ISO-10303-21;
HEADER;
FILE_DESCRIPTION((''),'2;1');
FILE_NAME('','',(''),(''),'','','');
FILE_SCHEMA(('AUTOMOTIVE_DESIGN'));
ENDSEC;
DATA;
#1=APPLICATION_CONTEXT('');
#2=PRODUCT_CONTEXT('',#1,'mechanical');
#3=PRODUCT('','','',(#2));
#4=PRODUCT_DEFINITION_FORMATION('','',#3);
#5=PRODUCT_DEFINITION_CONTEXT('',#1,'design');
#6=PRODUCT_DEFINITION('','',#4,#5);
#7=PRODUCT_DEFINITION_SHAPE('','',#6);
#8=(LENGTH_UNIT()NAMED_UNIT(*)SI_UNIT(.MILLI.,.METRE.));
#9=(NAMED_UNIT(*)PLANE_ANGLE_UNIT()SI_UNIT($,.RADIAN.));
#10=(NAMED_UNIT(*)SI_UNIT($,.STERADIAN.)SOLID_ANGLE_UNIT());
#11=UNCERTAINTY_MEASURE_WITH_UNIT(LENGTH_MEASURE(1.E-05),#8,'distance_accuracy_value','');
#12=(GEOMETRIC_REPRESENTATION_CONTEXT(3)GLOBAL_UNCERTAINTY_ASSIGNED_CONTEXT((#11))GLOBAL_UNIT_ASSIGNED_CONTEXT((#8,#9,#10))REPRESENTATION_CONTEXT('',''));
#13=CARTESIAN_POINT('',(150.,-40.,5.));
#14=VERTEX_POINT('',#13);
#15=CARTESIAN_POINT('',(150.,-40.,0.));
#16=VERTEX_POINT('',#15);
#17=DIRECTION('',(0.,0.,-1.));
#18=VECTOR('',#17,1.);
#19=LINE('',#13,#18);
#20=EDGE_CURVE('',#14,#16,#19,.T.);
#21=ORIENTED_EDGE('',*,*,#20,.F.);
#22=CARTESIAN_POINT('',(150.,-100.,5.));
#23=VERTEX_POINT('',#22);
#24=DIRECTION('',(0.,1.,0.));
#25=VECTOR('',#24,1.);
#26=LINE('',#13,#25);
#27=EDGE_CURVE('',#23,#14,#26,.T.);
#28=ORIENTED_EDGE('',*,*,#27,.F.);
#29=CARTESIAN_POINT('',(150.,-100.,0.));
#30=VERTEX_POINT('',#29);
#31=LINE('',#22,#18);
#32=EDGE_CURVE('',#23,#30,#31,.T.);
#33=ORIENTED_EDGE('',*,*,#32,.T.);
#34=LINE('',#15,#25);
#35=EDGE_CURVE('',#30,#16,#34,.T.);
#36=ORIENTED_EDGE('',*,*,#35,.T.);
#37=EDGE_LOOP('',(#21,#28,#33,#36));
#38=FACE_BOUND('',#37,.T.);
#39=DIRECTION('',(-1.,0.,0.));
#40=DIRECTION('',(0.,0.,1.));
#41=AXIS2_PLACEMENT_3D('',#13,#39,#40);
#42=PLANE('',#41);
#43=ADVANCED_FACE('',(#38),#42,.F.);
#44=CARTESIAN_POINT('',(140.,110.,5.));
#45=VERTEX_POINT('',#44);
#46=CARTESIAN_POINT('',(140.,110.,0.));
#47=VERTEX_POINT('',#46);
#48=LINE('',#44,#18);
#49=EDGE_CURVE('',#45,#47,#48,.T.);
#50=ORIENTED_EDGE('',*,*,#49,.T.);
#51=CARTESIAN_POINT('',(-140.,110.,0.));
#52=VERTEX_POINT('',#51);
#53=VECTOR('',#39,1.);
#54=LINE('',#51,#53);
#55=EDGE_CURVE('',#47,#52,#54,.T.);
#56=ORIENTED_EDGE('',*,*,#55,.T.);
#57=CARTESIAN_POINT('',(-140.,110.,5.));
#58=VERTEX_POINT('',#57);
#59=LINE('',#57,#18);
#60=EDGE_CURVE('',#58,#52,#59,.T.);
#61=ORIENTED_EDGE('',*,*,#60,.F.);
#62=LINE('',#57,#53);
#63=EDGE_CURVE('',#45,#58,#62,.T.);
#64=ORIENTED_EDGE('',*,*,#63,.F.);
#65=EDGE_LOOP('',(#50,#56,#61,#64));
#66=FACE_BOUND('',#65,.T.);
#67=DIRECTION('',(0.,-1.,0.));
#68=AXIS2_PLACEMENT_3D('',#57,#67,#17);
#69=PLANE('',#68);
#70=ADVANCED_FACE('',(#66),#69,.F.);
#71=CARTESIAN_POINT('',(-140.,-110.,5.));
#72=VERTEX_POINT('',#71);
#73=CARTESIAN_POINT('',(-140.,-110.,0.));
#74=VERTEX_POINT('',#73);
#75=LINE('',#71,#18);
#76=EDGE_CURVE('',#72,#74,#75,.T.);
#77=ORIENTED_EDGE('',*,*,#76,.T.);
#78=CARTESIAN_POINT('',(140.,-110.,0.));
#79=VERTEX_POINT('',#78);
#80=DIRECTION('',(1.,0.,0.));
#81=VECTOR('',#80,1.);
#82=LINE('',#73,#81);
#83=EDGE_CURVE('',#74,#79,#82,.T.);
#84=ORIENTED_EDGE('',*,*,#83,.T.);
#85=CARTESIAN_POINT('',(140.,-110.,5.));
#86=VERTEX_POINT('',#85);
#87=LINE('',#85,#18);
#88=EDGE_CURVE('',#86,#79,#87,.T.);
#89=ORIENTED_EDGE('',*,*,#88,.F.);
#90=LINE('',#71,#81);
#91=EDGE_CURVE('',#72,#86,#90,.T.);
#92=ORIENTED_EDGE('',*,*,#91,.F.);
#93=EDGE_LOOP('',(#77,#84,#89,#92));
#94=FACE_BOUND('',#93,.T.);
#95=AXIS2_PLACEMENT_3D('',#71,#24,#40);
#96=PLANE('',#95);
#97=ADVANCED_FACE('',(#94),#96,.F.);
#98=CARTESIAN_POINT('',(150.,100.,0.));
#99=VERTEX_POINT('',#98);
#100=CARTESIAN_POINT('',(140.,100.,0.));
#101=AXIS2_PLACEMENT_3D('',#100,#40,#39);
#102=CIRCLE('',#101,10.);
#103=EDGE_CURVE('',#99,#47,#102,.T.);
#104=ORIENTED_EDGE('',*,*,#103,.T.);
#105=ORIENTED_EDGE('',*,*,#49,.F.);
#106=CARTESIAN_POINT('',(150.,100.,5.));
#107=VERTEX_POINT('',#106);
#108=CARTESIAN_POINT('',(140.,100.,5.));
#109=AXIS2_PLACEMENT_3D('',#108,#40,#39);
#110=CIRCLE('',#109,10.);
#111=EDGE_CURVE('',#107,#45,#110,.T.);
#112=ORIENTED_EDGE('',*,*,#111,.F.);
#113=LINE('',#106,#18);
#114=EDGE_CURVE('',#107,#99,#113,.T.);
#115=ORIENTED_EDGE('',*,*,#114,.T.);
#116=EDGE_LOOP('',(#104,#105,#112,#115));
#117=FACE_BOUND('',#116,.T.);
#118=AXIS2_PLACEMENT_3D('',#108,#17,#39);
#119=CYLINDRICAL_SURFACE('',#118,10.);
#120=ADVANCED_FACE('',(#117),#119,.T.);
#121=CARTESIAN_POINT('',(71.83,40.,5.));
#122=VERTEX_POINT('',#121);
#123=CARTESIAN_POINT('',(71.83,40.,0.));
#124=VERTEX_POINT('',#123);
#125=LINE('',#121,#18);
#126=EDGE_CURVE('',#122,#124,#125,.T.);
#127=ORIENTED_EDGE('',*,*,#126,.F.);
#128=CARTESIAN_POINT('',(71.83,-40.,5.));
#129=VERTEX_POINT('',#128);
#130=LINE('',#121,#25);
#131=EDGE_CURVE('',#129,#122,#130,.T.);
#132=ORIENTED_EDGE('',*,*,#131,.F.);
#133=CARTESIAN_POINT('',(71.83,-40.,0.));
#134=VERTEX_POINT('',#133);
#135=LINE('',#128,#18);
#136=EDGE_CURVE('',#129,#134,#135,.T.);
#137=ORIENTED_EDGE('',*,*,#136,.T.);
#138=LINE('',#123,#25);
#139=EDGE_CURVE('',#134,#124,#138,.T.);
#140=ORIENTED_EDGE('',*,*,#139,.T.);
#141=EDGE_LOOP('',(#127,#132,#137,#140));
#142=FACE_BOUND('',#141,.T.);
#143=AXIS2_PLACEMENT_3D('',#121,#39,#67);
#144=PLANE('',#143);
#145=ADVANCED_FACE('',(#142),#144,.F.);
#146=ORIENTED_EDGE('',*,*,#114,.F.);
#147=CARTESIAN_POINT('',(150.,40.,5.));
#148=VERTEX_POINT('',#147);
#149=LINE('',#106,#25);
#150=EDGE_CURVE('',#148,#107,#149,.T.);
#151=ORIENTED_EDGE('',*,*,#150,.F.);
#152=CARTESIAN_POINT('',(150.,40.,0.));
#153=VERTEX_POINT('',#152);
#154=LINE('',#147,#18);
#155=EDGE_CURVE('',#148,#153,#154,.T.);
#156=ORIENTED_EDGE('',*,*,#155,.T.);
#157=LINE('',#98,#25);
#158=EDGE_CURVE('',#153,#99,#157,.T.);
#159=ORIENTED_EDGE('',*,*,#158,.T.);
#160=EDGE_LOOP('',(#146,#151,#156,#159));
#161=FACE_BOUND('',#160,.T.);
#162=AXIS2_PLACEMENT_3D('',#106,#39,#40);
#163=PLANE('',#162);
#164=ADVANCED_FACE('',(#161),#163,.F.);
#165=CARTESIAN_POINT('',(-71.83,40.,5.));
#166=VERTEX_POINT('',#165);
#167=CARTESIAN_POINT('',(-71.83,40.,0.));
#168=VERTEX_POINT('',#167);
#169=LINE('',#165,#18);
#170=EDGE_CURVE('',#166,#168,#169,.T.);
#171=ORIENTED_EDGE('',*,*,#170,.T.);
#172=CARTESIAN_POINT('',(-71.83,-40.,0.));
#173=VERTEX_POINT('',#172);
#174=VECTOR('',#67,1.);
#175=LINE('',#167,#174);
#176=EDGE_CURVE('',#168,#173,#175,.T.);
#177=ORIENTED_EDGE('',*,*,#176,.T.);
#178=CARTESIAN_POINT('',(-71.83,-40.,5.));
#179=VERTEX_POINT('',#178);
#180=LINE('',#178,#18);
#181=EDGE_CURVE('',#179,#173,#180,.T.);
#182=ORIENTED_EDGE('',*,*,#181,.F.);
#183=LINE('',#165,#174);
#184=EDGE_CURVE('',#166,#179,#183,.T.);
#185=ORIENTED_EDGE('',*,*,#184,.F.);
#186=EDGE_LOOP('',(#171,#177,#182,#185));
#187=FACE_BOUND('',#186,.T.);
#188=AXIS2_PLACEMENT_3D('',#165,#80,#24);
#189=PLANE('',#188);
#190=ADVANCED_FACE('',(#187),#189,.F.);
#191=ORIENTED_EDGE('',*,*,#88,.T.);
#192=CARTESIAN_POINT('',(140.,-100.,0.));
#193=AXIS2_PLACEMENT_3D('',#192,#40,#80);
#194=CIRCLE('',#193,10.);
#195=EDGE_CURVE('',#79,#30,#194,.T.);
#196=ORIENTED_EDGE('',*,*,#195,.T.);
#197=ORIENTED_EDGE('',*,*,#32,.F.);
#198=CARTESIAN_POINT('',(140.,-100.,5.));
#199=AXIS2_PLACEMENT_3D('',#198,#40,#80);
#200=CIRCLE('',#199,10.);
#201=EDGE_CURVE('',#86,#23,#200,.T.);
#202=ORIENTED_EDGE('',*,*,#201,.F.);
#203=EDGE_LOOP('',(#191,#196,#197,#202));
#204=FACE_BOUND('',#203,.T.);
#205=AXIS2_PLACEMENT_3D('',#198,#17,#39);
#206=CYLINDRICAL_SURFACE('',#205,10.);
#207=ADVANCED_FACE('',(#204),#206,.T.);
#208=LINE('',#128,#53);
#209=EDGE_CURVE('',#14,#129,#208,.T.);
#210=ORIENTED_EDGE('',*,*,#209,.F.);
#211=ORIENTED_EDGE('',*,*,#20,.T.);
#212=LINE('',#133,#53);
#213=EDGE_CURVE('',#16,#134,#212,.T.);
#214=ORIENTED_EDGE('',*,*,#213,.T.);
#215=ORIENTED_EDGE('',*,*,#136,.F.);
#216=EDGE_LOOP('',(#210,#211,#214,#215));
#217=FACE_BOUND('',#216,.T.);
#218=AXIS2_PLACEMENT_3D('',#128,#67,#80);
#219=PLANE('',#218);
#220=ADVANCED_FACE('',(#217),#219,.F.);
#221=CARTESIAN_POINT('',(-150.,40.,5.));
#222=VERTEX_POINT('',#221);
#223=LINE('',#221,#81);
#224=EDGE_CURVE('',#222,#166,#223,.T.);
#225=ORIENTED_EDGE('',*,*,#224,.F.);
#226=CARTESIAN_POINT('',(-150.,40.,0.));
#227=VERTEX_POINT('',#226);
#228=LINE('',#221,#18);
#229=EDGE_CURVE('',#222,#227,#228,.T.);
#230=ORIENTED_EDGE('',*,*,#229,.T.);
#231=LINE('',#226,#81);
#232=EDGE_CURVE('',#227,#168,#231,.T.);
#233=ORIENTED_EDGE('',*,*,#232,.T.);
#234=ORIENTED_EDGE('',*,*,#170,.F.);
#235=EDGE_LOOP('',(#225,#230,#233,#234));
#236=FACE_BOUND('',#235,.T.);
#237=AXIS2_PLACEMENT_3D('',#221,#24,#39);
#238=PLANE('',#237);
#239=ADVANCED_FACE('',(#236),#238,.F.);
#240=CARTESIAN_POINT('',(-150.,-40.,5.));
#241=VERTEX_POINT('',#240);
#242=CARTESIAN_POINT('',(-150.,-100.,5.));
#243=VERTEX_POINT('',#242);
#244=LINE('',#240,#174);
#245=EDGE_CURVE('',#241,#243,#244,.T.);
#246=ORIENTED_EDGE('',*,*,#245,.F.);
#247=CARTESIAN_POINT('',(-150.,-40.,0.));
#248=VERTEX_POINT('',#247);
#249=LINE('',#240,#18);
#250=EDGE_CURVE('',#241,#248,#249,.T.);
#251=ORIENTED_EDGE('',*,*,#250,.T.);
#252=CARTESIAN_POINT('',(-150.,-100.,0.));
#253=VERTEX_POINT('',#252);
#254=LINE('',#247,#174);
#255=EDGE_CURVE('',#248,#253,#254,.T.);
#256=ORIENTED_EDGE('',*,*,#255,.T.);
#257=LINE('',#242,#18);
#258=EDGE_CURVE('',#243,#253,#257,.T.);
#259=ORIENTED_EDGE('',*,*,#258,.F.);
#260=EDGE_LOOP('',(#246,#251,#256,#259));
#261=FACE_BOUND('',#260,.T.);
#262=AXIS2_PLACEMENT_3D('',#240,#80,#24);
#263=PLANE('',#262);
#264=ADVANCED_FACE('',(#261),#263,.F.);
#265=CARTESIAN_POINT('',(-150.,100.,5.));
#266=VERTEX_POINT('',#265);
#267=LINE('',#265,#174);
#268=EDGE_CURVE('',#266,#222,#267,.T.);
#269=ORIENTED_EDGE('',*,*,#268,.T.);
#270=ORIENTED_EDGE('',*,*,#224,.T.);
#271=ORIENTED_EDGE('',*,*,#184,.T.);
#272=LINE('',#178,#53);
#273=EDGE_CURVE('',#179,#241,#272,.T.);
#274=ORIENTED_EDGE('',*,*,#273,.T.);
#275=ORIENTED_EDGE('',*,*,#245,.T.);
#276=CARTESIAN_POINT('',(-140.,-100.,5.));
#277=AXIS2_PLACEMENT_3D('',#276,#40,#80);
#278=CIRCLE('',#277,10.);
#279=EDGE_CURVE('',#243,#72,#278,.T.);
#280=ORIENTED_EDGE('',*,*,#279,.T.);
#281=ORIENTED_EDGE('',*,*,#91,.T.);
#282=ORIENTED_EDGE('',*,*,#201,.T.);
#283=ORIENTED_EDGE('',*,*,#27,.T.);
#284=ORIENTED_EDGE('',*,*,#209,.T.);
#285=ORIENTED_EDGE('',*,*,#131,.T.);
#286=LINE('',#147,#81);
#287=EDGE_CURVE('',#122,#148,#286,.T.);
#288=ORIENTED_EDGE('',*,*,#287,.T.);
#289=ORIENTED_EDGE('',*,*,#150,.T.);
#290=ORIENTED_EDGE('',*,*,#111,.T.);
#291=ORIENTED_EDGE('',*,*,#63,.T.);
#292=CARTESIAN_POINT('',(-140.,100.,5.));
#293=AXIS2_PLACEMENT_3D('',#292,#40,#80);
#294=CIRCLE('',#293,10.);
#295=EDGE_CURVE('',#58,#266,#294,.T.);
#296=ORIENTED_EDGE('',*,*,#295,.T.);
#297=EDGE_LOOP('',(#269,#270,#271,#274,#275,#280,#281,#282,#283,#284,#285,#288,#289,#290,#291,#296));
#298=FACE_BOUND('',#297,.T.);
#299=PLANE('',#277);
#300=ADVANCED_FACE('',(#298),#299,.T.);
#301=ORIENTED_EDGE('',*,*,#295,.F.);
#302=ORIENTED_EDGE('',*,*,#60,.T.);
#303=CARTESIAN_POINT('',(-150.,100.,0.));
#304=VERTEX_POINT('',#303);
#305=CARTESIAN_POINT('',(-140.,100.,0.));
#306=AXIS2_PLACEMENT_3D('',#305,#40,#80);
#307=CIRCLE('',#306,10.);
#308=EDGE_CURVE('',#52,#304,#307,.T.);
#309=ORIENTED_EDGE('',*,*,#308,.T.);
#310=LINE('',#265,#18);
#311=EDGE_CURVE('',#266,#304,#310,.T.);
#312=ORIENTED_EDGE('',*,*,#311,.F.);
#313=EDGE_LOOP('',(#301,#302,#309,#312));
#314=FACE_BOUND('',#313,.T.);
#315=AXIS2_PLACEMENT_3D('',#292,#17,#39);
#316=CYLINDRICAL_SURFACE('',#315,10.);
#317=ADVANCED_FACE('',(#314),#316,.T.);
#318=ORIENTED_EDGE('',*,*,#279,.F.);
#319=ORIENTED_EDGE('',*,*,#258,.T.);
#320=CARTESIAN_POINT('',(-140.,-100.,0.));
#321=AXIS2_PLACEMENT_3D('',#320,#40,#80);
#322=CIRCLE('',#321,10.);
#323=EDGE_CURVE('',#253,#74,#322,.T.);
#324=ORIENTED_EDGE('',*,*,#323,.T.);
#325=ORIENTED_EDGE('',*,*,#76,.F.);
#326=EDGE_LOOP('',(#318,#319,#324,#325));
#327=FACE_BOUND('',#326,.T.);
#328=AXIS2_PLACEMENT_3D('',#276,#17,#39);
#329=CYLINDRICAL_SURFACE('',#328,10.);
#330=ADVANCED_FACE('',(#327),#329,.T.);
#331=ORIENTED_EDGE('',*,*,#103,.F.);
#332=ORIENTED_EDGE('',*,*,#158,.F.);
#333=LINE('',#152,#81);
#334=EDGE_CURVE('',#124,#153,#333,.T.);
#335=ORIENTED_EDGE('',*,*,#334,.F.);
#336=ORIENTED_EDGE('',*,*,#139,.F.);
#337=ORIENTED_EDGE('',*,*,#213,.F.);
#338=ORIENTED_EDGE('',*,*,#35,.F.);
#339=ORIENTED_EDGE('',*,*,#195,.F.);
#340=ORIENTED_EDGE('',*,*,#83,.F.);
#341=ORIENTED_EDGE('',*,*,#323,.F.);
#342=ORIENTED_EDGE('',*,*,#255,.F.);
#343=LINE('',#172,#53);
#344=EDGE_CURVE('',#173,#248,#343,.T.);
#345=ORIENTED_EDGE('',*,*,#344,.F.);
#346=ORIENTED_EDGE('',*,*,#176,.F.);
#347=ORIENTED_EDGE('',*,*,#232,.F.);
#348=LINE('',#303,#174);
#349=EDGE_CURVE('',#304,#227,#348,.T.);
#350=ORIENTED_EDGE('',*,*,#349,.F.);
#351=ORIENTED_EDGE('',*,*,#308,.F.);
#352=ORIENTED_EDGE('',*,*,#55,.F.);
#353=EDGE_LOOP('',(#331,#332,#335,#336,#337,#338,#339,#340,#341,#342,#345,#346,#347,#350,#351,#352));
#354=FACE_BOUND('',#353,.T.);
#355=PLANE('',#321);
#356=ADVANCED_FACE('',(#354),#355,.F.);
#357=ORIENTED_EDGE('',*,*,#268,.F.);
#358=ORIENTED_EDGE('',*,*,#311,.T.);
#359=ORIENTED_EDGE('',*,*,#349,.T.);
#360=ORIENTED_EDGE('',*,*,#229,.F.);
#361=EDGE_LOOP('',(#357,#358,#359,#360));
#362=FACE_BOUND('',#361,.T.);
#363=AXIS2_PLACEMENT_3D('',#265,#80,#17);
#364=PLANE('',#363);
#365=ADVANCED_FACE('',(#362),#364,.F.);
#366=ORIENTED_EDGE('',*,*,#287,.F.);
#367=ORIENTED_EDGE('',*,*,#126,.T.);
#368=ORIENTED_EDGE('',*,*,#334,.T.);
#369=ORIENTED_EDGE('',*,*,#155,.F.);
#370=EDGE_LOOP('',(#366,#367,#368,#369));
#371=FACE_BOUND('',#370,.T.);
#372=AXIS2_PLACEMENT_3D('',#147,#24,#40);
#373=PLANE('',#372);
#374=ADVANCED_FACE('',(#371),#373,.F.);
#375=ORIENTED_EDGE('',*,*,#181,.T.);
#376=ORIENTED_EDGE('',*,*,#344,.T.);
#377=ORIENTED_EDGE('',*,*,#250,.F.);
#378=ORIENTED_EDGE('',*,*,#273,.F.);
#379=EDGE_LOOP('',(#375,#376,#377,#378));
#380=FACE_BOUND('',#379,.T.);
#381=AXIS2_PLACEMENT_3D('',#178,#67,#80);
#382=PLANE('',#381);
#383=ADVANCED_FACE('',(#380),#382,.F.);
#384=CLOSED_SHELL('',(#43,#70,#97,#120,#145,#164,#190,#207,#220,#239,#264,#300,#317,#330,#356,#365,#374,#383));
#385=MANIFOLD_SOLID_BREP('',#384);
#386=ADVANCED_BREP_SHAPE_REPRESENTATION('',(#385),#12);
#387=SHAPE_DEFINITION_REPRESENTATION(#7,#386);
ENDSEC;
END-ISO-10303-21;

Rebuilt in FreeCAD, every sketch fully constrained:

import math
import FreeCAD as App
import Part
import Sketcher
Q = App.Units.Quantity

doc = App.newDocument("Part")
body = doc.addObject("PartDesign::Body", "Body")

# Sketch on XY plane
sketch1 = body.newObject("Sketcher::SketchObject", "Sketch")
sketch1.AttachmentSupport = (doc.getObject("XY_Plane"), [""])
sketch1.MapMode = "FlatFace"
sketch1.addGeometry([
    Part.LineSegment(App.Vector(-150, 40, 0), App.Vector(-71.83, 40, 0)),  # 0
    Part.LineSegment(App.Vector(-71.83, 40, 0), App.Vector(-71.83, -40, 0)),  # 1
    Part.LineSegment(App.Vector(-71.83, -40, 0), App.Vector(-150, -40, 0)),  # 2
    Part.LineSegment(App.Vector(-150, -40, 0), App.Vector(-150, -100, 0)),  # 3
    Part.ArcOfCircle(Part.Circle(App.Vector(-140, -100, 0), App.Vector(0, 0, 1), 10), math.radians(180), math.radians(270)),  # 4
    Part.LineSegment(App.Vector(-140, -110, 0), App.Vector(140, -110, 0)),  # 5
    Part.ArcOfCircle(Part.Circle(App.Vector(140, -100, 0), App.Vector(0, 0, 1), 10), math.radians(-90), math.radians(0)),  # 6
    Part.LineSegment(App.Vector(150, -100, 0), App.Vector(150, -40, 0)),  # 7
    Part.LineSegment(App.Vector(150, -40, 0), App.Vector(71.83, -40, 0)),  # 8
    Part.LineSegment(App.Vector(71.83, -40, 0), App.Vector(71.83, 40, 0)),  # 9
    Part.LineSegment(App.Vector(71.83, 40, 0), App.Vector(150, 40, 0)),  # 10
    Part.LineSegment(App.Vector(150, 40, 0), App.Vector(150, 100, 0)),  # 11
    Part.ArcOfCircle(Part.Circle(App.Vector(140, 100, 0), App.Vector(0, 0, 1), 10), math.radians(0), math.radians(90)),  # 12
    Part.LineSegment(App.Vector(140, 110, 0), App.Vector(-140, 110, 0)),  # 13
    Part.ArcOfCircle(Part.Circle(App.Vector(-140, 100, 0), App.Vector(0, 0, 1), 10), math.radians(90), math.radians(180)),  # 14
    Part.LineSegment(App.Vector(-150, 100, 0), App.Vector(-150, 40, 0)),  # 15
], False)
sketch1.addConstraint([
    Sketcher.Constraint("Coincident", 0, 2, 1, 1),
    Sketcher.Constraint("Coincident", 1, 2, 2, 1),
    Sketcher.Constraint("Coincident", 2, 2, 3, 1),
    Sketcher.Constraint("Tangent", 3, 2, 4, 1),
    Sketcher.Constraint("Tangent", 4, 2, 5, 1),
    Sketcher.Constraint("Tangent", 5, 2, 6, 1),
    Sketcher.Constraint("Tangent", 6, 2, 7, 1),
    Sketcher.Constraint("Coincident", 7, 2, 8, 1),
    Sketcher.Constraint("Coincident", 8, 2, 9, 1),
    Sketcher.Constraint("Coincident", 9, 2, 10, 1),
    Sketcher.Constraint("Coincident", 10, 2, 11, 1),
    Sketcher.Constraint("Tangent", 11, 2, 12, 1),
    Sketcher.Constraint("Tangent", 12, 2, 13, 1),
    Sketcher.Constraint("Tangent", 13, 2, 14, 1),
    Sketcher.Constraint("Tangent", 14, 2, 15, 1),
    Sketcher.Constraint("Coincident", 15, 2, 0, 1),
    Sketcher.Constraint("Horizontal", 0),
    Sketcher.Constraint("Vertical", 1),
    Sketcher.Constraint("Horizontal", 2),
    Sketcher.Constraint("Vertical", 3),
    Sketcher.Constraint("Horizontal", 5),
    Sketcher.Constraint("Vertical", 7),
    Sketcher.Constraint("Horizontal", 8),
    Sketcher.Constraint("Vertical", 9),
    Sketcher.Constraint("Horizontal", 10),
    Sketcher.Constraint("Vertical", 11),
    Sketcher.Constraint("Horizontal", 13),
    Sketcher.Constraint("Vertical", 15),
    Sketcher.Constraint("Equal", 4, 6),
    Sketcher.Constraint("Equal", 6, 12),
    Sketcher.Constraint("Equal", 12, 14),
    Sketcher.Constraint("Symmetric", 4, 3, 12, 3, -1, 1),
    Sketcher.Constraint("Symmetric", 0, 2, 8, 2, -1, 1),
    Sketcher.Constraint("Symmetric", 2, 2, 7, 2, -2),
    Sketcher.Constraint("Symmetric", 10, 2, 15, 2, -2),
    Sketcher.Constraint("Radius", 4, Q("10 mm")),
    Sketcher.Constraint("DistanceX", 5, 1, 5, 2, Q("280 mm")),
    Sketcher.Constraint("DistanceY", 1, 2, 1, 1, Q("80 mm")),
    Sketcher.Constraint("DistanceY", 3, 2, 3, 1, Q("60 mm")),
    Sketcher.Constraint("DistanceX", 0, 1, 0, 2, Q("78.17 mm")),
])
pad1 = body.newObject("PartDesign::Pad", "Pad")
pad1.Profile = sketch1
pad1.Length = 5

doc.recompute()
